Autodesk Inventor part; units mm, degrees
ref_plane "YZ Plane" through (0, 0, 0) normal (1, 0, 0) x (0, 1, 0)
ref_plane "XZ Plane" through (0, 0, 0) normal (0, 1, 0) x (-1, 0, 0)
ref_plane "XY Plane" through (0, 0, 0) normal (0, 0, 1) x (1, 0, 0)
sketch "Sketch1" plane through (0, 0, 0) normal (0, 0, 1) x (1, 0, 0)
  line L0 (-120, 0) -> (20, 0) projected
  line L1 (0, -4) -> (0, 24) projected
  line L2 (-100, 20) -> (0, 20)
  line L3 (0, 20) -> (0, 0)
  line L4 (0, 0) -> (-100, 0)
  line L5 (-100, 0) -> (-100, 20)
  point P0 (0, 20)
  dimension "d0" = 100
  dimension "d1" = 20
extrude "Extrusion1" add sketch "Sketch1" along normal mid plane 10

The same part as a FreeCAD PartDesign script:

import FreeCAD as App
import Part
import Sketcher

V = App.Vector
Q = App.Units.Quantity


def add_polygon(sketch, points):
    """Adds a closed chain of lines whose ends are joined by coincident constraints."""
    first, n = sketch.GeometryCount, len(points)
    for a, b in zip(points, points[1:] + points[:1]):
        sketch.addGeometry(Part.LineSegment(App.Vector(*a, 0), App.Vector(*b, 0)), False)
    for i in range(n):
        sketch.addConstraint(Sketcher.Constraint("Coincident", first + i, 2, first + (i + 1) % n, 1))

doc = App.newDocument("Part")
body = doc.addObject("PartDesign::Body", "Body")

sketch1 = body.newObject("Sketcher::SketchObject", "Sketch")
sketch1.AttachmentSupport = (doc.getObject("XY_Plane"), [""])
sketch1.MapMode = "FlatFace"
add_polygon(sketch1, [(-100, 20), (-100, 0), (0, 0), (0, 20)])
sketch1.addConstraint(Sketcher.Constraint("Vertical", 0))
sketch1.addConstraint(Sketcher.Constraint("Horizontal", 1))
sketch1.addConstraint(Sketcher.Constraint("Vertical", 2))
sketch1.addConstraint(Sketcher.Constraint("Horizontal", 3))
sketch1.addConstraint(Sketcher.Constraint("Coincident", 1, 2, -1, 1))
sketch1.addConstraint(Sketcher.Constraint("DistanceX", 1, 1, 1, 2, Q("100 mm")))
sketch1.addConstraint(Sketcher.Constraint("DistanceY", 0, 2, 0, 1, Q("20 mm")))
pad1 = body.newObject("PartDesign::Pad", "Pad")
pad1.Profile = sketch1
pad1.Length = 10
pad1.Midplane = True

doc.recompute()
